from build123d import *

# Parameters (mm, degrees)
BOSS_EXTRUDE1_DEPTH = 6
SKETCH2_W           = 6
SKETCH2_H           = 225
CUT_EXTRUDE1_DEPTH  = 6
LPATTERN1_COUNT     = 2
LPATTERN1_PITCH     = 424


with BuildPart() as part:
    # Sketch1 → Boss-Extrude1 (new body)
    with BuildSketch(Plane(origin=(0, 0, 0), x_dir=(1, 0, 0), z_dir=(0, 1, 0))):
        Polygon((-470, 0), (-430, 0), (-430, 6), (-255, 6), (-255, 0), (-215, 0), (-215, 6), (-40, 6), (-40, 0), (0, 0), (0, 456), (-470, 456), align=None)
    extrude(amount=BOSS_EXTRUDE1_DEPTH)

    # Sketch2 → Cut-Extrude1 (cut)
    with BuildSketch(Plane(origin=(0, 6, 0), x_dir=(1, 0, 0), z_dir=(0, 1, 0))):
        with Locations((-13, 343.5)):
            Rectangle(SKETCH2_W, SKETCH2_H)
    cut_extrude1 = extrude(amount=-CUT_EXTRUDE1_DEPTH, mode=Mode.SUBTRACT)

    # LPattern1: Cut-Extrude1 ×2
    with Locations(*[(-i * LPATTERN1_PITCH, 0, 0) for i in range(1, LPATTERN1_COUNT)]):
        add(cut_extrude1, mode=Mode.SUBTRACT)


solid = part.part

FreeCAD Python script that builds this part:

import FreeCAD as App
import Part
import Sketcher
from FreeCAD import Vector

doc = App.newDocument("Part")
body = doc.addObject("PartDesign::Body", "Body")

sketch1 = doc.addObject("Sketcher::SketchObject", "Sketch")
body.addObject(sketch1)
sketch1.AttachmentSupport = (doc.XZ_Plane, [""])
sketch1.MapMode = "FlatFace"
sketch1.addGeometry(Part.LineSegment(Vector(-470, 0, 0), Vector(-430, 0, 0)), False)
sketch1.addGeometry(Part.LineSegment(Vector(-430, 0, 0), Vector(-430, -6, 0)), False)
sketch1.addGeometry(Part.LineSegment(Vector(-430, -6, 0), Vector(-255, -6, 0)), False)
sketch1.addGeometry(Part.LineSegment(Vector(-255, -6, 0), Vector(-255, 0, 0)), False)
sketch1.addGeometry(Part.LineSegment(Vector(-255, 0, 0), Vector(-215, 0, 0)), False)
sketch1.addGeometry(Part.LineSegment(Vector(-215, 0, 0), Vector(-215, -6, 0)), False)
sketch1.addGeometry(Part.LineSegment(Vector(-215, -6, 0), Vector(-40, -6, 0)), False)
sketch1.addGeometry(Part.LineSegment(Vector(-40, -6, 0), Vector(-40, 0, 0)), False)
sketch1.addGeometry(Part.LineSegment(Vector(-40, 0, 0), Vector(0, 0, 0)), False)
sketch1.addGeometry(Part.LineSegment(Vector(0, 0, 0), Vector(0, -456, 0)), False)
sketch1.addGeometry(Part.LineSegment(Vector(0, -456, 0), Vector(-470, -456, 0)), False)
sketch1.addGeometry(Part.LineSegment(Vector(-470, -456, 0), Vector(-470, 0, 0)), False)
sketch1.addConstraint(Sketcher.Constraint("Coincident", 0, 2, 1, 1))
sketch1.addConstraint(Sketcher.Constraint("Coincident", 1, 2, 2, 1))
sketch1.addConstraint(Sketcher.Constraint("Coincident", 2, 2, 3, 1))
sketch1.addConstraint(Sketcher.Constraint("Coincident", 3, 2, 4, 1))
sketch1.addConstraint(Sketcher.Constraint("Coincident", 4, 2, 5, 1))
sketch1.addConstraint(Sketcher.Constraint("Coincident", 5, 2, 6, 1))
sketch1.addConstraint(Sketcher.Constraint("Coincident", 6, 2, 7, 1))
sketch1.addConstraint(Sketcher.Constraint("Coincident", 7, 2, 8, 1))
sketch1.addConstraint(Sketcher.Constraint("Coincident", 8, 2, 9, 1))
sketch1.addConstraint(Sketcher.Constraint("Coincident", 9, 2, 10, 1))
sketch1.addConstraint(Sketcher.Constraint("Coincident", 10, 2, 11, 1))
sketch1.addConstraint(Sketcher.Constraint("Coincident", 11, 2, 0, 1))
sketch1.addConstraint(Sketcher.Constraint("Horizontal", 0))
sketch1.addConstraint(Sketcher.Constraint("Vertical", 1))
sketch1.addConstraint(Sketcher.Constraint("Horizontal", 2))
sketch1.addConstraint(Sketcher.Constraint("Vertical", 3))
sketch1.addConstraint(Sketcher.Constraint("Horizontal", 4))
sketch1.addConstraint(Sketcher.Constraint("Vertical", 5))
sketch1.addConstraint(Sketcher.Constraint("Horizontal", 6))
sketch1.addConstraint(Sketcher.Constraint("Vertical", 7))
sketch1.addConstraint(Sketcher.Constraint("Horizontal", 8))
sketch1.addConstraint(Sketcher.Constraint("Vertical", 9))
sketch1.addConstraint(Sketcher.Constraint("Horizontal", 10))
sketch1.addConstraint(Sketcher.Constraint("Vertical", 11))
sketch1.addConstraint(Sketcher.Constraint("Coincident", 8, 2, -1, 1))
sketch1.addConstraint(Sketcher.Constraint("PointOnObject", 0, 2, -1))
sketch1.addConstraint(Sketcher.Constraint("PointOnObject", 3, 2, -1))
sketch1.addConstraint(Sketcher.Constraint("Horizontal", 2, 2, 5, 2))
sketch1.addConstraint(Sketcher.Constraint("Equal", 0, 4))
sketch1.addConstraint(Sketcher.Constraint("Equal", 2, 6))
sketch1.addConstraint(Sketcher.Constraint("Equal", 4, 8))
sketch1.addConstraint(Sketcher.Constraint("DistanceX", 0, 1, 0, 2, 40.0))
sketch1.addConstraint(Sketcher.Constraint("DistanceX", 2, 1, 2, 2, 175.0))
sketch1.addConstraint(Sketcher.Constraint("DistanceY", 1, 2, 1, 1, 6.0))
sketch1.addConstraint(Sketcher.Constraint("DistanceY", 9, 2, 9, 1, 456.0))
pad1 = doc.addObject("PartDesign::Pad", "Pad")
body.addObject(pad1)
pad1.Profile = sketch1
pad1.Length = 6
pad1.Reversed = True

sketch2 = doc.addObject("Sketcher::SketchObject", "Sketch001")
body.addObject(sketch2)
sketch2.AttachmentSupport = (doc.XZ_Plane, [""])
sketch2.MapMode = "FlatFace"
sketch2.AttachmentOffset = App.Placement(Vector(0, 0, -6), App.Rotation())
sketch2.addGeometry(Part.LineSegment(Vector(-16, -456, 0), Vector(-16, -231, 0)), False)
sketch2.addGeometry(Part.LineSegment(Vector(-16, -231, 0), Vector(-10, -231, 0)), False)
sketch2.addGeometry(Part.LineSegment(Vector(-10, -231, 0), Vector(-10, -456, 0)), False)
sketch2.addGeometry(Part.LineSegment(Vector(-10, -456, 0), Vector(-16, -456, 0)), False)
sketch2.addConstraint(Sketcher.Constraint("Coincident", 0, 2, 1, 1))
sketch2.addConstraint(Sketcher.Constraint("Coincident", 1, 2, 2, 1))
sketch2.addConstraint(Sketcher.Constraint("Coincident", 2, 2, 3, 1))
sketch2.addConstraint(Sketcher.Constraint("Coincident", 3, 2, 0, 1))
sketch2.addConstraint(Sketcher.Constraint("Vertical", 0))
sketch2.addConstraint(Sketcher.Constraint("Horizontal", 1))
sketch2.addConstraint(Sketcher.Constraint("Vertical", 2))
sketch2.addConstraint(Sketcher.Constraint("Horizontal", 3))
sketch2.addConstraint(Sketcher.Constraint("DistanceX", 1, 1, 1, 2, 6.0))
sketch2.addConstraint(Sketcher.Constraint("DistanceY", 0, 1, 0, 2, 225.0))
sketch2.addConstraint(Sketcher.Constraint("DistanceX", 0, 2, -1, 1, 16.0))
sketch2.addConstraint(Sketcher.Constraint("DistanceY", 0, 2, -1, 1, 231.0))
pocket1 = doc.addObject("PartDesign::Pocket", "Pocket")
body.addObject(pocket1)
pocket1.Profile = sketch2
pocket1.Length = 6
pocket1.Reversed = True
doc.recompute()

linearpattern = doc.addObject("PartDesign::LinearPattern", "LinearPattern")
body.addObject(linearpattern)
linearpattern.Originals = [pocket1]
linearpattern.Direction = (doc.X_Axis, [""])
linearpattern.Mode = "offset"
linearpattern.Offset = 424
linearpattern.Occurrences = 2
linearpattern.Reversed = True
body.Tip = linearpattern

doc.recompute()
